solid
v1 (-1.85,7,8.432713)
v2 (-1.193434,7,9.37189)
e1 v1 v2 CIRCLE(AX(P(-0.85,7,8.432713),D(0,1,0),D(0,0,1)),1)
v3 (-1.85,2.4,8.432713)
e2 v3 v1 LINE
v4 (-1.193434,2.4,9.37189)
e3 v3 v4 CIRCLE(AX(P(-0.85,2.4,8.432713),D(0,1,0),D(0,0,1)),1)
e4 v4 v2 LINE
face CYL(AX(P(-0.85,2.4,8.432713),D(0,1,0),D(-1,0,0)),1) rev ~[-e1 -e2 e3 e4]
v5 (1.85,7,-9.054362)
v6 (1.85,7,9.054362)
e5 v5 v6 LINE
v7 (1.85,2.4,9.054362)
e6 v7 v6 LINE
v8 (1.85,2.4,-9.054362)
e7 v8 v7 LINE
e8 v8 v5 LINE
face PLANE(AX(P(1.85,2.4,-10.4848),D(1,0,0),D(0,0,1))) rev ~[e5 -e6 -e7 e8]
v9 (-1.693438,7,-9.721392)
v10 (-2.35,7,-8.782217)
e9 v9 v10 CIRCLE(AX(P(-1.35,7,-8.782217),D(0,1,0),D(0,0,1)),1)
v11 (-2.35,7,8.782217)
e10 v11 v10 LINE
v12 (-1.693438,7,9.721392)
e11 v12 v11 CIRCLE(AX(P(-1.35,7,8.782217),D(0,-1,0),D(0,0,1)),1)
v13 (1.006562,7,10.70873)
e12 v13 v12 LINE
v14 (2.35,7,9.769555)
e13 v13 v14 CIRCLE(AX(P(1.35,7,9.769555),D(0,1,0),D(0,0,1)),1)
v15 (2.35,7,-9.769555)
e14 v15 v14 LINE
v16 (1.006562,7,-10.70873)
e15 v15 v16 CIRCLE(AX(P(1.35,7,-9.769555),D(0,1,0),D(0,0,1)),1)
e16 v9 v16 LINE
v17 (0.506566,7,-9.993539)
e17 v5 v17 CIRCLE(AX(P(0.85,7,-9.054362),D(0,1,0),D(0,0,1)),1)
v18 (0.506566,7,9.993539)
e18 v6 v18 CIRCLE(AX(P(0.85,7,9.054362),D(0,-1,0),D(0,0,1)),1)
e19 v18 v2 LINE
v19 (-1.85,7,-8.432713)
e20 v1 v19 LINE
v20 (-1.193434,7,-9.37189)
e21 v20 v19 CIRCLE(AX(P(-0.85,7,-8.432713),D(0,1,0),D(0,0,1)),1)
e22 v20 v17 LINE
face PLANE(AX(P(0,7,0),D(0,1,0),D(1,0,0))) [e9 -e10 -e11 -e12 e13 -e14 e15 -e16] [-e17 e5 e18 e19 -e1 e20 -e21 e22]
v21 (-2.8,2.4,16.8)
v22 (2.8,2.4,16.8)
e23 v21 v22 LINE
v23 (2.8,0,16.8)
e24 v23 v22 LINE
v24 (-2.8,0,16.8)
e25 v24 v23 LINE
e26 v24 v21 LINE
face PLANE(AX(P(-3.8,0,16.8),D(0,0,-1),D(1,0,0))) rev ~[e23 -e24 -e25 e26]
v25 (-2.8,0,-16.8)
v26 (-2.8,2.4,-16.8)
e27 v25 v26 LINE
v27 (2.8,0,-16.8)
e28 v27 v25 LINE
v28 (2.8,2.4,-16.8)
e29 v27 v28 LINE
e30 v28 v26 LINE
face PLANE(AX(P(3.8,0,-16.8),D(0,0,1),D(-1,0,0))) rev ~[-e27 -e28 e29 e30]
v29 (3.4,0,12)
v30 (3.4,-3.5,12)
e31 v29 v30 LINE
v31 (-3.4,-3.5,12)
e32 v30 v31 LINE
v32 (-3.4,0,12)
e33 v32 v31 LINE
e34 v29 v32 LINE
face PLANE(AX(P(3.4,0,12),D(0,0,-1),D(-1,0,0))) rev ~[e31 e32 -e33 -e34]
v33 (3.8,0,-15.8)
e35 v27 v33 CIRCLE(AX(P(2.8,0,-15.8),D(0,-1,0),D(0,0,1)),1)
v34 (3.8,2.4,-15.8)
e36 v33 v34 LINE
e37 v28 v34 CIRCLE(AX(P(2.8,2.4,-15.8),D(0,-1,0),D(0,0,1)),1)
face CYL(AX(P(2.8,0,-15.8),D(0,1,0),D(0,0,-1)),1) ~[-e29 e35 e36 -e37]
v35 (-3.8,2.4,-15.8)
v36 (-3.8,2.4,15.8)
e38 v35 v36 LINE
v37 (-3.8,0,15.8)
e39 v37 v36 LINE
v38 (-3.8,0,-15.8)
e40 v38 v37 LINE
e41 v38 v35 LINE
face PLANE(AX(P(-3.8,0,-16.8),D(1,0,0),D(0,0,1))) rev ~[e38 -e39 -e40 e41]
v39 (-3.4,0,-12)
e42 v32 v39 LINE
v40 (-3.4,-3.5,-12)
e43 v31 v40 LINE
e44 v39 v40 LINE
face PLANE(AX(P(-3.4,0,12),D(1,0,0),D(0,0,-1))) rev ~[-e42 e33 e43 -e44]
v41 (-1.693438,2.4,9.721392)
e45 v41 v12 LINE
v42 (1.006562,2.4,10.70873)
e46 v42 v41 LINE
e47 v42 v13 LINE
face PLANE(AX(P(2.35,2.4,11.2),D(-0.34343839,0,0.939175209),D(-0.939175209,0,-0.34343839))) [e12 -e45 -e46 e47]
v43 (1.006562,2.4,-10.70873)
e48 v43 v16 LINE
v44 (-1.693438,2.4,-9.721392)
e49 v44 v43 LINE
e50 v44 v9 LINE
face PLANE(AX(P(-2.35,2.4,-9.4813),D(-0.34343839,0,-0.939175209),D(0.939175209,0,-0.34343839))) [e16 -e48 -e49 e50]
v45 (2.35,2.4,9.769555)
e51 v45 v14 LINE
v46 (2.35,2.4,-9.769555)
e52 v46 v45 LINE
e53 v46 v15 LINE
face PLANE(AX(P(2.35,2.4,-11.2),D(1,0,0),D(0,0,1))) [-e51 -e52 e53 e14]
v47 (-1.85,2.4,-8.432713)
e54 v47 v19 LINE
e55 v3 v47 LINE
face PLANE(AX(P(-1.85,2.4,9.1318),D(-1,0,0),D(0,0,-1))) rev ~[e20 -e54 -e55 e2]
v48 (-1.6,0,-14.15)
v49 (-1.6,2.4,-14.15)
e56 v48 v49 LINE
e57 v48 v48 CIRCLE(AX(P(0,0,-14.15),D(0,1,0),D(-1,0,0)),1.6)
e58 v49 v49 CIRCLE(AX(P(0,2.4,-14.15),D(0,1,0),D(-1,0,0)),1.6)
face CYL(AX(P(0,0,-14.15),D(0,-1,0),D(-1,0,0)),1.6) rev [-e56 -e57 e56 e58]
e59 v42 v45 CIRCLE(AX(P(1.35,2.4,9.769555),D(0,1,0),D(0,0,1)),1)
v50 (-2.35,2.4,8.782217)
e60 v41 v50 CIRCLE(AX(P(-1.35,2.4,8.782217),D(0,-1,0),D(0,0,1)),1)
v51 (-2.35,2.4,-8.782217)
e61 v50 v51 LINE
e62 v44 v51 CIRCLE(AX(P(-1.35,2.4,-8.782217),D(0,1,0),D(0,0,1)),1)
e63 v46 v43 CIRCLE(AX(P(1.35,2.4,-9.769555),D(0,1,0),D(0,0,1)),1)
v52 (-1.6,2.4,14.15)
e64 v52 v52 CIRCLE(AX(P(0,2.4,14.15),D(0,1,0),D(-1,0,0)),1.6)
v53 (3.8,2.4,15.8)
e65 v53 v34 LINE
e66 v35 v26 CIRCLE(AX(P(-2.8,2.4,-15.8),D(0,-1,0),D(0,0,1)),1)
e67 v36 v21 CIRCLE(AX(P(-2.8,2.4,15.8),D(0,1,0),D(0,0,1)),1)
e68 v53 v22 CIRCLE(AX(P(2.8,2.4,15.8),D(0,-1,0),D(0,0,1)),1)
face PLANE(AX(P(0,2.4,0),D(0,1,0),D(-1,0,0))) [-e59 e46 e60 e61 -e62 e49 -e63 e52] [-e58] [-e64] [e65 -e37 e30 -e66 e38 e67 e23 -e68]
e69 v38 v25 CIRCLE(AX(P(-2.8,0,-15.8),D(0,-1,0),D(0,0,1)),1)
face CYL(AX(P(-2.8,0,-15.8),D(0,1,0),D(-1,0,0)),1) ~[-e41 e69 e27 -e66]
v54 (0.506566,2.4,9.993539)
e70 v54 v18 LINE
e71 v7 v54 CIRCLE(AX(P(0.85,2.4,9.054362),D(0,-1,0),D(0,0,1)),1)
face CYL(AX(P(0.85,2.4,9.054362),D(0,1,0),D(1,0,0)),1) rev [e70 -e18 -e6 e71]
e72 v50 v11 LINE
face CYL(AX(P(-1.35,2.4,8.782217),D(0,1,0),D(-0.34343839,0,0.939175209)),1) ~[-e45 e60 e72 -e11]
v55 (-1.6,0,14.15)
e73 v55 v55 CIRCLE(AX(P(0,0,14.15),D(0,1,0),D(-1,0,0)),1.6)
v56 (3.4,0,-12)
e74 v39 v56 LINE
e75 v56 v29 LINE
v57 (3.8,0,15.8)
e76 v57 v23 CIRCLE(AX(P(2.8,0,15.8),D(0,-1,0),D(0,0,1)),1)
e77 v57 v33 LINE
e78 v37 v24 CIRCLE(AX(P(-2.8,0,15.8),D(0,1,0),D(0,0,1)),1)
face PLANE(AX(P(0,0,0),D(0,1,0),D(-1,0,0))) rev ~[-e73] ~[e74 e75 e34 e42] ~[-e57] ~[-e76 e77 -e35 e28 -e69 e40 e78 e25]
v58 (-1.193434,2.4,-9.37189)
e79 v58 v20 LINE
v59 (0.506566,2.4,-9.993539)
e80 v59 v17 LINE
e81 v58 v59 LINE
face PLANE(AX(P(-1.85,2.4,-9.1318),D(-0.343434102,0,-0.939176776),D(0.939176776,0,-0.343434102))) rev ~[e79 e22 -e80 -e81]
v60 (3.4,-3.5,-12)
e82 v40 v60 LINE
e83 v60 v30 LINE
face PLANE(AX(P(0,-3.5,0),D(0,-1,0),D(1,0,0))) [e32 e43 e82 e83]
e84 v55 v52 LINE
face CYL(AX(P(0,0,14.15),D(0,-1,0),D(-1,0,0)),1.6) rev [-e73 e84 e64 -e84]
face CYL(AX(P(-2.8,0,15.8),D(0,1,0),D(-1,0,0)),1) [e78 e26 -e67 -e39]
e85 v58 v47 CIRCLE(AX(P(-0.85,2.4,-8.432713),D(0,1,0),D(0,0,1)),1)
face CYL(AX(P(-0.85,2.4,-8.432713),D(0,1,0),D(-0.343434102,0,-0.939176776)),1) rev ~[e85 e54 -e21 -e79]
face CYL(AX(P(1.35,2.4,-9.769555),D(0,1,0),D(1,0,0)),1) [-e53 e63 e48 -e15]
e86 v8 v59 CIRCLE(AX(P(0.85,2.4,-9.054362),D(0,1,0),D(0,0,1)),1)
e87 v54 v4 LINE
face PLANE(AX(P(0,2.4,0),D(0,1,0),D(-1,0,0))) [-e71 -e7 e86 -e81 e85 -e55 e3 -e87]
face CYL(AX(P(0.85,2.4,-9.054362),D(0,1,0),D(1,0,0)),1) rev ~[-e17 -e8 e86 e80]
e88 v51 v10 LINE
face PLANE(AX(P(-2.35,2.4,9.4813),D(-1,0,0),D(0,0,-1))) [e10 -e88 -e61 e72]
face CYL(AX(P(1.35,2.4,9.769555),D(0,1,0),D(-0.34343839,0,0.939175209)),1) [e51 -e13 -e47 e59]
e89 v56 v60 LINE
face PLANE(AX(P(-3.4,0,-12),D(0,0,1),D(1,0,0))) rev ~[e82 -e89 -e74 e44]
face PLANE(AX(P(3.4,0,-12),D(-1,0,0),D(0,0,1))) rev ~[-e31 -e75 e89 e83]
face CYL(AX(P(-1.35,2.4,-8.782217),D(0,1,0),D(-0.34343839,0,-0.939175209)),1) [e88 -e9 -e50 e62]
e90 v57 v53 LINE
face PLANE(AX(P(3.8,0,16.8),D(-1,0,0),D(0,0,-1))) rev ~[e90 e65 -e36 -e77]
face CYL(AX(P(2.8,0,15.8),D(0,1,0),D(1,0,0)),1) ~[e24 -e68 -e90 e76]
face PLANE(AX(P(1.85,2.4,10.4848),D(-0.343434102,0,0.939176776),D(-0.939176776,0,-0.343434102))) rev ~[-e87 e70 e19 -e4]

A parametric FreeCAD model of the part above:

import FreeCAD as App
import Part
import Sketcher


def edges_at(feature, points):
    """Names of the edges that pass closest to the given points."""
    edges = feature.Shape.Edges
    near = lambda p: min(range(len(edges)), key=lambda i: edges[i].distToShape(Part.Vertex(*p))[0])
    return sorted({f"Edge{near(p) + 1}" for p in points})


def add_polygon(sketch, points):
    """Adds a closed chain of lines whose ends are joined by coincident constraints."""
    first, n = sketch.GeometryCount, len(points)
    for a, b in zip(points, points[1:] + points[:1]):
        sketch.addGeometry(Part.LineSegment(App.Vector(*a, 0), App.Vector(*b, 0)), False)
    for i in range(n):
        sketch.addConstraint(Sketcher.Constraint("Coincident", first + i, 2, first + (i + 1) % n, 1))

doc = App.newDocument("Part")
body = doc.addObject("PartDesign::Body", "Body")

# Sketch on XZ plane
sketch1 = body.newObject("Sketcher::SketchObject", "Sketch")
sketch1.AttachmentSupport = (doc.getObject("XZ_Plane"), [""])
sketch1.MapMode = "FlatFace"
add_polygon(sketch1, [(-3.8, -16.8), (-3.8, 16.8), (3.8, 16.8), (3.8, -16.8)])  # lines 0-3
sketch1.addGeometry(Part.Circle(App.Vector(0, -14.2, 0), App.Vector(0, 0, 1), 1.6), False)  # 4
sketch1.addGeometry(Part.Circle(App.Vector(0, 14.2, 0), App.Vector(0, 0, 1), 1.6), False)  # 5
sketch1.addConstraint([
    Sketcher.Constraint("Vertical", 0),
    Sketcher.Constraint("Horizontal", 1),
    Sketcher.Constraint("Vertical", 2),
    Sketcher.Constraint("Horizontal", 3),
    Sketcher.Constraint("Equal", 4, 5),
    Sketcher.Constraint("Symmetric", 4, 3, 5, 3, -1, 1),
    Sketcher.Constraint("Symmetric", 0, 2, 2, 2, -1, 1),
    Sketcher.Constraint("PointOnObject", 4, 3, -2),
    Sketcher.Constraint("Diameter", 4, 3.2),
    Sketcher.Constraint("DistanceX", 1, 1, 1, 2, 7.6),
    Sketcher.Constraint("DistanceY", 0, 1, 0, 2, 33.6),
    Sketcher.Constraint("DistanceY", 4, 3, 5, 3, 28.3),
])
pad1 = body.newObject("PartDesign::Pad", "Pad")
pad1.Profile = sketch1
pad1.Length = 2.4
pad1.Reversed = True
doc.recompute()

fillet = body.newObject("PartDesign::Fillet", "Fillet")
fillet.Base = (pad1, edges_at(pad1, [
    (3.8, 1.2, 16.8),
    (-3.8, 1.2, 16.8),
    (3.8, 1.2, -16.8),
    (-3.8, 1.2, -16.8),
]))
fillet.Radius = 1

# Sketch on XZ plane
sketch2 = body.newObject("Sketcher::SketchObject", "Sketch001")
sketch2.AttachmentSupport = (doc.getObject("XZ_Plane"), [""])
sketch2.MapMode = "FlatFace"
sketch2.AttachmentOffset = App.Placement(App.Vector(0, 0, -2.4), App.Rotation())
add_polygon(sketch2, [(-2.4, -9.5), (-2.4, 9.5), (2.4, 11.2), (2.4, -11.2)])  # lines 0-3
add_polygon(sketch2, [(1.9, -10.5), (1.9, 10.5), (-1.9, 9.1), (-1.9, -9.1)])  # lines 4-7
sketch2.addConstraint([
    Sketcher.Constraint("Vertical", 0),
    Sketcher.Constraint("Vertical", 2),
    Sketcher.Constraint("Vertical", 4),
    Sketcher.Constraint("Vertical", 6),
    Sketcher.Constraint("Parallel", 1, 5),
    Sketcher.Constraint("Parallel", 3, 7),
    Sketcher.Constraint("Equal", 1, 3),
    Sketcher.Constraint("DistanceY", 2, 2, 2, 1, 22.4),
    Sketcher.Constraint("DistanceY", -1, 1, 1, 2, 11.2),
    Sketcher.Constraint("DistanceX", 0, 2, 1, 2, 4.7),
    Sketcher.Constraint("DistanceX", 4, 2, 1, 2, 0.5),
    Sketcher.Constraint("DistanceX", 0, 2, 5, 2, 0.5),
    Sketcher.Constraint("DistanceX", 0, 2, -1, 1, 2.35),
    Sketcher.Constraint("DistanceY", 0, 1, 0, 2, 18.9626),
    Sketcher.Constraint("DistanceY", 4, 1, 4, 2, 20.9696),
    Sketcher.Constraint("DistanceY", 3, 2, 4, 2, 19.966),
])
pad2 = body.newObject("PartDesign::Pad", "Pad001")
pad2.Profile = sketch2
pad2.Length = 4.6
pad2.Reversed = True
doc.recompute()

fillet2 = body.newObject("PartDesign::Fillet", "Fillet001")
fillet2.Base = (pad2, edges_at(pad2, [
    (-2.35, 4.7, -9.481),
    (-2.35, 4.7, 9.481),
    (2.35, 4.7, 11.2),
    (2.35, 4.7, -11.2),
    (-1.85, 4.7, -9.132),
    (-1.85, 4.7, 9.132),
    (1.85, 4.7, -10.485),
    (1.85, 4.7, 10.485),
]))
fillet2.Radius = 1

# Sketch on XZ plane
sketch3 = body.newObject("Sketcher::SketchObject", "Sketch002")
sketch3.AttachmentSupport = (doc.getObject("XZ_Plane"), [""])
sketch3.MapMode = "FlatFace"
add_polygon(sketch3, [(3, -12), (3, 12), (-3, 12), (-3, -12)])  # lines 0-3
sketch3.addConstraint([
    Sketcher.Constraint("Vertical", 0),
    Sketcher.Constraint("Horizontal", 1),
    Sketcher.Constraint("Vertical", 2),
    Sketcher.Constraint("Horizontal", 3),
    Sketcher.Constraint("Symmetric", 0, 2, 2, 2, -1, 1),
    Sketcher.Constraint("DistanceY", 0, 1, 0, 2, 24.0),
    Sketcher.Constraint("DistanceX", 1, 2, 1, 1, 6.8),
])
pad3 = body.newObject("PartDesign::Pad", "Pad002")
pad3.Profile = sketch3
pad3.Length = 3.5

doc.recompute()
